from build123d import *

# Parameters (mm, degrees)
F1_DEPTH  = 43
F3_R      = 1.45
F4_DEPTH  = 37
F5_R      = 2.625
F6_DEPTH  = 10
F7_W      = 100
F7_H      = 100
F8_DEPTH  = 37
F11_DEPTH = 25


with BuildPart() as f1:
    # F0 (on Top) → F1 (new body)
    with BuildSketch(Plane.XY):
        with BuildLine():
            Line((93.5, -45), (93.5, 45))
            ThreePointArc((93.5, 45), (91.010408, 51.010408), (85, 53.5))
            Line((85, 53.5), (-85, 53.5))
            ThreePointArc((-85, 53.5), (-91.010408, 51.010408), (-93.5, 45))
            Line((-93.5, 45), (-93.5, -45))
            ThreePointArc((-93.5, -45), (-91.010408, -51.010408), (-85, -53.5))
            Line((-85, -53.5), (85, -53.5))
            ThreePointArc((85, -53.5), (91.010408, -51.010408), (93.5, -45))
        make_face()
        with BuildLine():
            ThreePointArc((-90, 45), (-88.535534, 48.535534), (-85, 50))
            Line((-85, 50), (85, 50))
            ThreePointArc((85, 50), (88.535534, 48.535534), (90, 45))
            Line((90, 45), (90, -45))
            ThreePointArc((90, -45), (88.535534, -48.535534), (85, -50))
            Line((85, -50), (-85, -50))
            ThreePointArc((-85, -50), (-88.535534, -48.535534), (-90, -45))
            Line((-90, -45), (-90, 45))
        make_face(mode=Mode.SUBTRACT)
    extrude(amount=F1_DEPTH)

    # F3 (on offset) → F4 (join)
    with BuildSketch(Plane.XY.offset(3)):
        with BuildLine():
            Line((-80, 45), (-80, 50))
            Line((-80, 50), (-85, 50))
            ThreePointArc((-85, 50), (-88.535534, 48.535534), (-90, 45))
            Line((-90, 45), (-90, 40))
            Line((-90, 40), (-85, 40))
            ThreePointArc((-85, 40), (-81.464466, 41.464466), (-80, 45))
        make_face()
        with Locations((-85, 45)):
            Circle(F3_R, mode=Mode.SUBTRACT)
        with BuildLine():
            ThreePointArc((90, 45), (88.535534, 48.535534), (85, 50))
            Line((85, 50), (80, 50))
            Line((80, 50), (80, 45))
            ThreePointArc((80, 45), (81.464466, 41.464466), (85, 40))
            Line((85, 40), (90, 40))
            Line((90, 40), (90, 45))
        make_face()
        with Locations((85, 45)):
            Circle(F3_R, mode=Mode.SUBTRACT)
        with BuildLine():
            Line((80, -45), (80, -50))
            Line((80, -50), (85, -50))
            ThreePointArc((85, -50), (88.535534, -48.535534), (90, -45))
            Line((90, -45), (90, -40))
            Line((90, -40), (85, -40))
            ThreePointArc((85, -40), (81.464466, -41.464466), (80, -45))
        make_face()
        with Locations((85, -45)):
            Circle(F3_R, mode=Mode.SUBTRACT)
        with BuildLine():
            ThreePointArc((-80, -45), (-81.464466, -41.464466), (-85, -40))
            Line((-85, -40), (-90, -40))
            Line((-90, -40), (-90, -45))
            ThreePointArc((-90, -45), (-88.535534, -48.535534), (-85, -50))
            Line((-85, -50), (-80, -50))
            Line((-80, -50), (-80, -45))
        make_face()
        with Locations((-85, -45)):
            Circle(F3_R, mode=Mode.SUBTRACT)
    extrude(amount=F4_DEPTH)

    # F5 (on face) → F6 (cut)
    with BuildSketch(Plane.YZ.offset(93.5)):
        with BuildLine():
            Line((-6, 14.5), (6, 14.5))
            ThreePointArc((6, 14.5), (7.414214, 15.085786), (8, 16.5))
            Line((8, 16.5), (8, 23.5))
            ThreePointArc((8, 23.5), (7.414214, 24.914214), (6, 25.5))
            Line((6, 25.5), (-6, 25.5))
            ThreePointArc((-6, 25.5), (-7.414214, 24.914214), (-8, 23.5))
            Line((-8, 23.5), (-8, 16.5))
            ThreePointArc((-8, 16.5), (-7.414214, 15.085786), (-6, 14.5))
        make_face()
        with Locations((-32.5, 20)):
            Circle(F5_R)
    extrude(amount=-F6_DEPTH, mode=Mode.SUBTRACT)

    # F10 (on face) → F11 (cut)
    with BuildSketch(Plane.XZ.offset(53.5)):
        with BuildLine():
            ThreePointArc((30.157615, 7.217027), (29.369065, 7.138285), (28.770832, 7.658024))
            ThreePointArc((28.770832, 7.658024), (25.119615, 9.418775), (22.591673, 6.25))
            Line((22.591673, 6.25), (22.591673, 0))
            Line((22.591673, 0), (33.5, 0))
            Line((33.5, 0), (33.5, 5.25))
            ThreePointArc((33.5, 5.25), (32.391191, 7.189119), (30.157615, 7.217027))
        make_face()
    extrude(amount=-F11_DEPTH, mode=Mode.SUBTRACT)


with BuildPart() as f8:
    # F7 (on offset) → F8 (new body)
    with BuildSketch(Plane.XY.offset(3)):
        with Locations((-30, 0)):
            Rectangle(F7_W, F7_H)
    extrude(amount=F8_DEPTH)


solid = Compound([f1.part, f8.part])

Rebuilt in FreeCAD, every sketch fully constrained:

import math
import FreeCAD as App
import Part
import Sketcher
Q = App.Units.Quantity


def add_polygon(sketch, points):
    """Adds a closed chain of lines whose ends are joined by coincident constraints."""
    first, n = sketch.GeometryCount, len(points)
    for a, b in zip(points, points[1:] + points[:1]):
        sketch.addGeometry(Part.LineSegment(App.Vector(*a, 0), App.Vector(*b, 0)), False)
    for i in range(n):
        sketch.addConstraint(Sketcher.Constraint("Coincident", first + i, 2, first + (i + 1) % n, 1))

doc = App.newDocument("Part")
body = doc.addObject("PartDesign::Body", "Body")

# Sketch on XY plane
sketch1 = body.newObject("Sketcher::SketchObject", "Sketch")
sketch1.AttachmentSupport = (doc.getObject("XY_Plane"), [""])
sketch1.MapMode = "FlatFace"
sketch1.addGeometry([
    Part.LineSegment(App.Vector(93.5, -45, 0), App.Vector(93.5, 45, 0)),  # 0
    Part.ArcOfCircle(Part.Circle(App.Vector(85, 45, 0), App.Vector(0, 0, 1), 8.5), math.radians(0), math.radians(90)),  # 1
    Part.LineSegment(App.Vector(85, 53.5, 0), App.Vector(-85, 53.5, 0)),  # 2
    Part.ArcOfCircle(Part.Circle(App.Vector(-85, 45, 0), App.Vector(0, 0, 1), 8.5), math.radians(90), math.radians(180)),  # 3
    Part.LineSegment(App.Vector(-93.5, 45, 0), App.Vector(-93.5, -45, 0)),  # 4
    Part.ArcOfCircle(Part.Circle(App.Vector(-85, -45, 0), App.Vector(0, 0, 1), 8.5), math.radians(180), math.radians(270)),  # 5
    Part.LineSegment(App.Vector(-85, -53.5, 0), App.Vector(85, -53.5, 0)),  # 6
    Part.ArcOfCircle(Part.Circle(App.Vector(85, -45, 0), App.Vector(0, 0, 1), 8.5), math.radians(-90), math.radians(0)),  # 7
    Part.LineSegment(App.Vector(-90, -45, 0), App.Vector(-90, 45, 0)),  # 8
    Part.ArcOfCircle(Part.Circle(App.Vector(-85, 45, 0), App.Vector(0, 0, 1), 5), math.radians(90), math.radians(180)),  # 9
    Part.LineSegment(App.Vector(-85, 50, 0), App.Vector(85, 50, 0)),  # 10
    Part.ArcOfCircle(Part.Circle(App.Vector(85, 45, 0), App.Vector(0, 0, 1), 5), math.radians(0), math.radians(90)),  # 11
    Part.LineSegment(App.Vector(90, 45, 0), App.Vector(90, -45, 0)),  # 12
    Part.ArcOfCircle(Part.Circle(App.Vector(85, -45, 0), App.Vector(0, 0, 1), 5), math.radians(-90), math.radians(0)),  # 13
    Part.LineSegment(App.Vector(85, -50, 0), App.Vector(-85, -50, 0)),  # 14
    Part.ArcOfCircle(Part.Circle(App.Vector(-85, -45, 0), App.Vector(0, 0, 1), 5), math.radians(180), math.radians(270)),  # 15
], False)
sketch1.addConstraint([
    Sketcher.Constraint("Tangent", 0, 2, 1, 1),
    Sketcher.Constraint("Tangent", 1, 2, 2, 1),
    Sketcher.Constraint("Tangent", 2, 2, 3, 1),
    Sketcher.Constraint("Tangent", 3, 2, 4, 1),
    Sketcher.Constraint("Tangent", 4, 2, 5, 1),
    Sketcher.Constraint("Tangent", 5, 2, 6, 1),
    Sketcher.Constraint("Tangent", 6, 2, 7, 1),
    Sketcher.Constraint("Tangent", 7, 2, 0, 1),
    Sketcher.Constraint("Tangent", 8, 2, 9, 2),
    Sketcher.Constraint("Tangent", 9, 1, 10, 1),
    Sketcher.Constraint("Tangent", 10, 2, 11, 2),
    Sketcher.Constraint("Tangent", 11, 1, 12, 1),
    Sketcher.Constraint("Tangent", 12, 2, 13, 2),
    Sketcher.Constraint("Tangent", 13, 1, 14, 1),
    Sketcher.Constraint("Tangent", 14, 2, 15, 2),
    Sketcher.Constraint("Tangent", 15, 1, 8, 1),
    Sketcher.Constraint("Vertical", 0),
    Sketcher.Constraint("Horizontal", 2),
    Sketcher.Constraint("Vertical", 4),
    Sketcher.Constraint("Horizontal", 6),
    Sketcher.Constraint("Vertical", 8),
    Sketcher.Constraint("Horizontal", 10),
    Sketcher.Constraint("Vertical", 12),
    Sketcher.Constraint("Horizontal", 14),
    Sketcher.Constraint("Coincident", 9, 3, 3, 3),
    Sketcher.Constraint("Coincident", 11, 3, 1, 3),
    Sketcher.Constraint("Coincident", 13, 3, 7, 3),
    Sketcher.Constraint("Equal", 1, 3),
    Sketcher.Constraint("Equal", 3, 5),
    Sketcher.Constraint("Equal", 5, 7),
    Sketcher.Constraint("Equal", 13, 15),
    Sketcher.Constraint("Symmetric", 1, 3, 5, 3, -1, 1),
    Sketcher.Constraint("Radius", 9, Q("5 mm")),
    Sketcher.Constraint("Radius", 1, Q("8.499999 mm")),
    Sketcher.Constraint("DistanceX", 2, 2, 2, 1, Q("170 mm")),
    Sketcher.Constraint("DistanceY", 0, 1, 0, 2, Q("90 mm")),
])
pad1 = body.newObject("PartDesign::Pad", "Pad")
pad1.Profile = sketch1
pad1.Length = 43

# Sketch on XY plane
sketch2 = body.newObject("Sketcher::SketchObject", "Sketch001")
sketch2.AttachmentSupport = (doc.getObject("XY_Plane"), [""])
sketch2.MapMode = "FlatFace"
sketch2.AttachmentOffset = App.Placement(App.Vector(0, 0, 3), App.Rotation())
sketch2.addGeometry([
    Part.LineSegment(App.Vector(-80, 45, 0), App.Vector(-80, 50, 0)),  # 0
    Part.LineSegment(App.Vector(-80, 50, 0), App.Vector(-85, 50, 0)),  # 1
    Part.ArcOfCircle(Part.Circle(App.Vector(-85, 45, 0), App.Vector(0, 0, 1), 5), math.radians(90), math.radians(180)),  # 2
    Part.LineSegment(App.Vector(-90, 45, 0), App.Vector(-90, 40, 0)),  # 3
    Part.LineSegment(App.Vector(-90, 40, 0), App.Vector(-85, 40, 0)),  # 4
    Part.ArcOfCircle(Part.Circle(App.Vector(-85, 45, 0), App.Vector(0, 0, 1), 5), math.radians(-90), math.radians(0)),  # 5
    Part.Circle(App.Vector(-85, 45, 0), App.Vector(0, 0, 1), 1.4),  # 6
    Part.ArcOfCircle(Part.Circle(App.Vector(85, 45, 0), App.Vector(0, 0, 1), 5), math.radians(0), math.radians(90)),  # 7
    Part.LineSegment(App.Vector(85, 50, 0), App.Vector(80, 50, 0)),  # 8
    Part.LineSegment(App.Vector(80, 50, 0), App.Vector(80, 45, 0)),  # 9
    Part.ArcOfCircle(Part.Circle(App.Vector(85, 45, 0), App.Vector(0, 0, 1), 5), math.radians(180), math.radians(270)),  # 10
    Part.LineSegment(App.Vector(85, 40, 0), App.Vector(90, 40, 0)),  # 11
    Part.LineSegment(App.Vector(90, 40, 0), App.Vector(90, 45, 0)),  # 12
    Part.Circle(App.Vector(85, 45, 0), App.Vector(0, 0, 1), 1.4),  # 13
    Part.LineSegment(App.Vector(80, -45, 0), App.Vector(80, -50, 0)),  # 14
    Part.LineSegment(App.Vector(80, -50, 0), App.Vector(85, -50, 0)),  # 15
    Part.ArcOfCircle(Part.Circle(App.Vector(85, -45, 0), App.Vector(0, 0, 1), 5), math.radians(-90), math.radians(0)),  # 16
    Part.LineSegment(App.Vector(90, -45, 0), App.Vector(90, -40, 0)),  # 17
    Part.LineSegment(App.Vector(90, -40, 0), App.Vector(85, -40, 0)),  # 18
    Part.ArcOfCircle(Part.Circle(App.Vector(85, -45, 0), App.Vector(0, 0, 1), 5), math.radians(90), math.radians(180)),  # 19
    Part.Circle(App.Vector(85, -45, 0), App.Vector(0, 0, 1), 1.4),  # 20
    Part.ArcOfCircle(Part.Circle(App.Vector(-85, -45, 0), App.Vector(0, 0, 1), 5), math.radians(0), math.radians(90)),  # 21
    Part.LineSegment(App.Vector(-85, -40, 0), App.Vector(-90, -40, 0)),  # 22
    Part.LineSegment(App.Vector(-90, -40, 0), App.Vector(-90, -45, 0)),  # 23
    Part.ArcOfCircle(Part.Circle(App.Vector(-85, -45, 0), App.Vector(0, 0, 1), 5), math.radians(180), math.radians(270)),  # 24
    Part.LineSegment(App.Vector(-85, -50, 0), App.Vector(-80, -50, 0)),  # 25
    Part.LineSegment(App.Vector(-80, -50, 0), App.Vector(-80, -45, 0)),  # 26
    Part.Circle(App.Vector(-85, -45, 0), App.Vector(0, 0, 1), 1.4),  # 27
], False)
sketch2.addConstraint([
    Sketcher.Constraint("Coincident", 0, 2, 1, 1),
    Sketcher.Constraint("Tangent", 1, 2, 2, 1),
    Sketcher.Constraint("Tangent", 2, 2, 3, 1),
    Sketcher.Constraint("Coincident", 3, 2, 4, 1),
    Sketcher.Constraint("Tangent", 4, 2, 5, 1),
    Sketcher.Constraint("Tangent", 5, 2, 0, 1),
    Sketcher.Constraint("Tangent", 7, 2, 8, 1),
    Sketcher.Constraint("Coincident", 8, 2, 9, 1),
    Sketcher.Constraint("Tangent", 9, 2, 10, 1),
    Sketcher.Constraint("Tangent", 10, 2, 11, 1),
    Sketcher.Constraint("Coincident", 11, 2, 12, 1),
    Sketcher.Constraint("Tangent", 12, 2, 7, 1),
    Sketcher.Constraint("Coincident", 14, 2, 15, 1),
    Sketcher.Constraint("Tangent", 15, 2, 16, 1),
    Sketcher.Constraint("Tangent", 16, 2, 17, 1),
    Sketcher.Constraint("Coincident", 17, 2, 18, 1),
    Sketcher.Constraint("Tangent", 18, 2, 19, 1),
    Sketcher.Constraint("Tangent", 19, 2, 14, 1),
    Sketcher.Constraint("Tangent", 21, 2, 22, 1),
    Sketcher.Constraint("Coincident", 22, 2, 23, 1),
    Sketcher.Constraint("Tangent", 23, 2, 24, 1),
    Sketcher.Constraint("Tangent", 24, 2, 25, 1),
    Sketcher.Constraint("Coincident", 25, 2, 26, 1),
    Sketcher.Constraint("Tangent", 26, 2, 21, 1),
    Sketcher.Constraint("Vertical", 0),
    Sketcher.Constraint("Horizontal", 1),
    Sketcher.Constraint("Vertical", 3),
    Sketcher.Constraint("Horizontal", 4),
    Sketcher.Constraint("Horizontal", 8),
    Sketcher.Constraint("Vertical", 9),
    Sketcher.Constraint("Horizontal", 11),
    Sketcher.Constraint("Vertical", 12),
    Sketcher.Constraint("Vertical", 14),
    Sketcher.Constraint("Horizontal", 15),
    Sketcher.Constraint("Vertical", 17),
    Sketcher.Constraint("Horizontal", 18),
    Sketcher.Constraint("Horizontal", 22),
    Sketcher.Constraint("Vertical", 23),
    Sketcher.Constraint("Horizontal", 25),
    Sketcher.Constraint("Vertical", 26),
    Sketcher.Constraint("Coincident", 5, 3, 2, 3),
    Sketcher.Constraint("Coincident", 6, 3, 2, 3),
    Sketcher.Constraint("Coincident", 10, 3, 7, 3),
    Sketcher.Constraint("Coincident", 13, 3, 7, 3),
    Sketcher.Constraint("Coincident", 19, 3, 16, 3),
    Sketcher.Constraint("Coincident", 20, 3, 16, 3),
    Sketcher.Constraint("Coincident", 24, 3, 21, 3),
    Sketcher.Constraint("Coincident", 27, 3, 21, 3),
    Sketcher.Constraint("Equal", 2, 5),
    Sketcher.Constraint("Equal", 5, 7),
    Sketcher.Constraint("Equal", 7, 10),
    Sketcher.Constraint("Equal", 6, 13),
    Sketcher.Constraint("Equal", 10, 16),
    Sketcher.Constraint("Equal", 16, 19),
    Sketcher.Constraint("Equal", 13, 20),
    Sketcher.Constraint("Equal", 19, 21),
    Sketcher.Constraint("Equal", 21, 24),
    Sketcher.Constraint("Equal", 20, 27),
    Sketcher.Constraint("Symmetric", 2, 3, 16, 3, -1, 1),
    Sketcher.Constraint("Symmetric", 7, 3, 21, 3, -1, 1),
    Sketcher.Constraint("Symmetric", 2, 3, 7, 3, -2),
    Sketcher.Constraint("Radius", 2, Q("5 mm")),
    Sketcher.Constraint("Diameter", 6, Q("2.9 mm")),
    Sketcher.Constraint("DistanceX", 2, 3, -1, 1, Q("85 mm")),
    Sketcher.Constraint("DistanceY", -1, 1, 2, 3, Q("45 mm")),
])
pad2 = body.newObject("PartDesign::Pad", "Pad001")
pad2.Profile = sketch2
pad2.Length = 37

# Sketch on YZ plane
sketch3 = body.newObject("Sketcher::SketchObject", "Sketch002")
sketch3.AttachmentSupport = (doc.getObject("YZ_Plane"), [""])
sketch3.MapMode = "FlatFace"
sketch3.AttachmentOffset = App.Placement(App.Vector(0, 0, 93.5), App.Rotation())
sketch3.addGeometry([
    Part.LineSegment(App.Vector(-6, 14.5, 0), App.Vector(6, 14.5, 0)),  # 0
    Part.ArcOfCircle(Part.Circle(App.Vector(6, 16.5, 0), App.Vector(0, 0, 1), 2), math.radians(-90), math.radians(0)),  # 1
    Part.LineSegment(App.Vector(8, 16.5, 0), App.Vector(8, 23.5, 0)),  # 2
    Part.ArcOfCircle(Part.Circle(App.Vector(6, 23.5, 0), App.Vector(0, 0, 1), 2), math.radians(0), math.radians(90)),  # 3
    Part.LineSegment(App.Vector(6, 25.5, 0), App.Vector(-6, 25.5, 0)),  # 4
    Part.ArcOfCircle(Part.Circle(App.Vector(-6, 23.5, 0), App.Vector(0, 0, 1), 2), math.radians(90), math.radians(180)),  # 5
    Part.LineSegment(App.Vector(-8, 23.5, 0), App.Vector(-8, 16.5, 0)),  # 6
    Part.ArcOfCircle(Part.Circle(App.Vector(-6, 16.5, 0), App.Vector(0, 0, 1), 2), math.radians(180), math.radians(270)),  # 7
    Part.Circle(App.Vector(-32.5, 20, 0), App.Vector(0, 0, 1), 2.6),  # 8
], False)
sketch3.addConstraint([
    Sketcher.Constraint("Tangent", 0, 2, 1, 1),
    Sketcher.Constraint("Tangent", 1, 2, 2, 1),
    Sketcher.Constraint("Tangent", 2, 2, 3, 1),
    Sketcher.Constraint("Tangent", 3, 2, 4, 1),
    Sketcher.Constraint("Tangent", 4, 2, 5, 1),
    Sketcher.Constraint("Tangent", 5, 2, 6, 1),
    Sketcher.Constraint("Tangent", 6, 2, 7, 1),
    Sketcher.Constraint("Tangent", 7, 2, 0, 1),
    Sketcher.Constraint("Horizontal", 0),
    Sketcher.Constraint("Vertical", 2),
    Sketcher.Constraint("Horizontal", 4),
    Sketcher.Constraint("Vertical", 6),
    Sketcher.Constraint("Equal", 1, 3),
    Sketcher.Constraint("Equal", 3, 5),
    Sketcher.Constraint("Equal", 5, 7),
    Sketcher.Constraint("Radius", 1, Q("1.999999 mm")),
    Sketcher.Constraint("Diameter", 8, Q("5.25 mm")),
    Sketcher.Constraint("DistanceX", 0, 1, 0, 2, Q("12 mm")),
    Sketcher.Constraint("DistanceY", 2, 1, 2, 2, Q("7 mm")),
    Sketcher.Constraint("DistanceX", -1, 1, 1, 3, Q("6.000001 mm")),
    Sketcher.Constraint("DistanceY", -1, 1, 8, 3, Q("20 mm")),
    Sketcher.Constraint("DistanceY", -1, 1, 1, 3, Q("16.499999 mm")),
    Sketcher.Constraint("DistanceX", 8, 3, -1, 1, Q("32.5 mm")),
])
pocket1 = body.newObject("PartDesign::Pocket", "Pocket")
pocket1.Profile = sketch3
pocket1.Length = 10

# Sketch on XZ plane
sketch4 = body.newObject("Sketcher::SketchObject", "Sketch003")
sketch4.AttachmentSupport = (doc.getObject("XZ_Plane"), [""])
sketch4.MapMode = "FlatFace"
sketch4.AttachmentOffset = App.Placement(App.Vector(0, 0, 53.5), App.Rotation())
sketch4.addGeometry([
    Part.ArcOfCircle(Part.Circle(App.Vector(29.7, 8.1, 0), App.Vector(0, 0, 1), 1), math.radians(-154), math.radians(-61)),  # 0
    Part.ArcOfCircle(Part.Circle(App.Vector(25.8, 6.3, 0), App.Vector(0, 0, 1), 3.3), math.radians(26), math.radians(180)),  # 1
    Part.LineSegment(App.Vector(22.6, 6.2, 0), App.Vector(22.6, 0, 0)),  # 2
    Part.LineSegment(App.Vector(22.6, 0, 0), App.Vector(33.5, 0, 0)),  # 3
    Part.LineSegment(App.Vector(33.5, 0, 0), App.Vector(33.5, 5.2, 0)),  # 4
    Part.ArcOfCircle(Part.Circle(App.Vector(31.2, 5.2, 0), App.Vector(0, 0, 1), 2.3), math.radians(0), math.radians(119)),  # 5
], False)
sketch4.addConstraint([
    Sketcher.Constraint("Coincident", 0, 1, 1, 1),
    Sketcher.Constraint("Tangent", 1, 2, 2, 1),
    Sketcher.Constraint("Coincident", 2, 2, 3, 1),
    Sketcher.Constraint("Coincident", 3, 2, 4, 1),
    Sketcher.Constraint("Tangent", 4, 2, 5, 1),
    Sketcher.Constraint("Tangent", 5, 2, 0, 2),
    Sketcher.Constraint("Vertical", 2),
    Sketcher.Constraint("Horizontal", 3),
    Sketcher.Constraint("Vertical", 4),
    Sketcher.Constraint("PointOnObject", 2, 2, -1),
    Sketcher.Constraint("Radius", 1, Q("3.25 mm")),
    Sketcher.Constraint("Radius", 5, Q("2.25 mm")),
    Sketcher.Constraint("DistanceY", 5, 3, 1, 3, Q("1 mm")),
    Sketcher.Constraint("DistanceY", 2, 2, 2, 1, Q("6.25 mm")),
    Sketcher.Constraint("DistanceX", -1, 1, 3, 2, Q("33.5 mm")),
    Sketcher.Constraint("Radius", 0, Q("0.999998 mm")),
    Sketcher.Constraint("DistanceX", 3, 1, 3, 2, Q("10.908327 mm")),
    Sketcher.Constraint("DistanceX", -1, 1, 0, 1, Q("28.770832 mm")),
])
pocket2 = body.newObject("PartDesign::Pocket", "Pocket001")
pocket2.Profile = sketch4
pocket2.Length = 25
body2 = doc.addObject("PartDesign::Body", "Body001")

# Sketch on XY plane
sketch5 = body2.newObject("Sketcher::SketchObject", "Sketch004")
sketch5.AttachmentSupport = (doc.getObject("XY_Plane001"), [""])
sketch5.MapMode = "FlatFace"
sketch5.AttachmentOffset = App.Placement(App.Vector(0, 0, 3), App.Rotation())
add_polygon(sketch5, [(-80, 50), (-80, -50), (20, -50), (20, 50)])  # lines 0-3
sketch5.addConstraint([
    Sketcher.Constraint("Vertical", 0),
    Sketcher.Constraint("Horizontal", 1),
    Sketcher.Constraint("Vertical", 2),
    Sketcher.Constraint("Horizontal", 3),
    Sketcher.Constraint("Equal", 3, 0),
    Sketcher.Constraint("DistanceX", 1, 1, 1, 2, Q("100 mm")),
    Sketcher.Constraint("DistanceX", 0, 2, -1, 1, Q("80 mm")),
    Sketcher.Constraint("DistanceY", 0, 2, -1, 1, Q("50 mm")),
])
pad3 = body2.newObject("PartDesign::Pad", "Pad002")
pad3.Profile = sketch5
pad3.Length = 37

doc.recompute()
